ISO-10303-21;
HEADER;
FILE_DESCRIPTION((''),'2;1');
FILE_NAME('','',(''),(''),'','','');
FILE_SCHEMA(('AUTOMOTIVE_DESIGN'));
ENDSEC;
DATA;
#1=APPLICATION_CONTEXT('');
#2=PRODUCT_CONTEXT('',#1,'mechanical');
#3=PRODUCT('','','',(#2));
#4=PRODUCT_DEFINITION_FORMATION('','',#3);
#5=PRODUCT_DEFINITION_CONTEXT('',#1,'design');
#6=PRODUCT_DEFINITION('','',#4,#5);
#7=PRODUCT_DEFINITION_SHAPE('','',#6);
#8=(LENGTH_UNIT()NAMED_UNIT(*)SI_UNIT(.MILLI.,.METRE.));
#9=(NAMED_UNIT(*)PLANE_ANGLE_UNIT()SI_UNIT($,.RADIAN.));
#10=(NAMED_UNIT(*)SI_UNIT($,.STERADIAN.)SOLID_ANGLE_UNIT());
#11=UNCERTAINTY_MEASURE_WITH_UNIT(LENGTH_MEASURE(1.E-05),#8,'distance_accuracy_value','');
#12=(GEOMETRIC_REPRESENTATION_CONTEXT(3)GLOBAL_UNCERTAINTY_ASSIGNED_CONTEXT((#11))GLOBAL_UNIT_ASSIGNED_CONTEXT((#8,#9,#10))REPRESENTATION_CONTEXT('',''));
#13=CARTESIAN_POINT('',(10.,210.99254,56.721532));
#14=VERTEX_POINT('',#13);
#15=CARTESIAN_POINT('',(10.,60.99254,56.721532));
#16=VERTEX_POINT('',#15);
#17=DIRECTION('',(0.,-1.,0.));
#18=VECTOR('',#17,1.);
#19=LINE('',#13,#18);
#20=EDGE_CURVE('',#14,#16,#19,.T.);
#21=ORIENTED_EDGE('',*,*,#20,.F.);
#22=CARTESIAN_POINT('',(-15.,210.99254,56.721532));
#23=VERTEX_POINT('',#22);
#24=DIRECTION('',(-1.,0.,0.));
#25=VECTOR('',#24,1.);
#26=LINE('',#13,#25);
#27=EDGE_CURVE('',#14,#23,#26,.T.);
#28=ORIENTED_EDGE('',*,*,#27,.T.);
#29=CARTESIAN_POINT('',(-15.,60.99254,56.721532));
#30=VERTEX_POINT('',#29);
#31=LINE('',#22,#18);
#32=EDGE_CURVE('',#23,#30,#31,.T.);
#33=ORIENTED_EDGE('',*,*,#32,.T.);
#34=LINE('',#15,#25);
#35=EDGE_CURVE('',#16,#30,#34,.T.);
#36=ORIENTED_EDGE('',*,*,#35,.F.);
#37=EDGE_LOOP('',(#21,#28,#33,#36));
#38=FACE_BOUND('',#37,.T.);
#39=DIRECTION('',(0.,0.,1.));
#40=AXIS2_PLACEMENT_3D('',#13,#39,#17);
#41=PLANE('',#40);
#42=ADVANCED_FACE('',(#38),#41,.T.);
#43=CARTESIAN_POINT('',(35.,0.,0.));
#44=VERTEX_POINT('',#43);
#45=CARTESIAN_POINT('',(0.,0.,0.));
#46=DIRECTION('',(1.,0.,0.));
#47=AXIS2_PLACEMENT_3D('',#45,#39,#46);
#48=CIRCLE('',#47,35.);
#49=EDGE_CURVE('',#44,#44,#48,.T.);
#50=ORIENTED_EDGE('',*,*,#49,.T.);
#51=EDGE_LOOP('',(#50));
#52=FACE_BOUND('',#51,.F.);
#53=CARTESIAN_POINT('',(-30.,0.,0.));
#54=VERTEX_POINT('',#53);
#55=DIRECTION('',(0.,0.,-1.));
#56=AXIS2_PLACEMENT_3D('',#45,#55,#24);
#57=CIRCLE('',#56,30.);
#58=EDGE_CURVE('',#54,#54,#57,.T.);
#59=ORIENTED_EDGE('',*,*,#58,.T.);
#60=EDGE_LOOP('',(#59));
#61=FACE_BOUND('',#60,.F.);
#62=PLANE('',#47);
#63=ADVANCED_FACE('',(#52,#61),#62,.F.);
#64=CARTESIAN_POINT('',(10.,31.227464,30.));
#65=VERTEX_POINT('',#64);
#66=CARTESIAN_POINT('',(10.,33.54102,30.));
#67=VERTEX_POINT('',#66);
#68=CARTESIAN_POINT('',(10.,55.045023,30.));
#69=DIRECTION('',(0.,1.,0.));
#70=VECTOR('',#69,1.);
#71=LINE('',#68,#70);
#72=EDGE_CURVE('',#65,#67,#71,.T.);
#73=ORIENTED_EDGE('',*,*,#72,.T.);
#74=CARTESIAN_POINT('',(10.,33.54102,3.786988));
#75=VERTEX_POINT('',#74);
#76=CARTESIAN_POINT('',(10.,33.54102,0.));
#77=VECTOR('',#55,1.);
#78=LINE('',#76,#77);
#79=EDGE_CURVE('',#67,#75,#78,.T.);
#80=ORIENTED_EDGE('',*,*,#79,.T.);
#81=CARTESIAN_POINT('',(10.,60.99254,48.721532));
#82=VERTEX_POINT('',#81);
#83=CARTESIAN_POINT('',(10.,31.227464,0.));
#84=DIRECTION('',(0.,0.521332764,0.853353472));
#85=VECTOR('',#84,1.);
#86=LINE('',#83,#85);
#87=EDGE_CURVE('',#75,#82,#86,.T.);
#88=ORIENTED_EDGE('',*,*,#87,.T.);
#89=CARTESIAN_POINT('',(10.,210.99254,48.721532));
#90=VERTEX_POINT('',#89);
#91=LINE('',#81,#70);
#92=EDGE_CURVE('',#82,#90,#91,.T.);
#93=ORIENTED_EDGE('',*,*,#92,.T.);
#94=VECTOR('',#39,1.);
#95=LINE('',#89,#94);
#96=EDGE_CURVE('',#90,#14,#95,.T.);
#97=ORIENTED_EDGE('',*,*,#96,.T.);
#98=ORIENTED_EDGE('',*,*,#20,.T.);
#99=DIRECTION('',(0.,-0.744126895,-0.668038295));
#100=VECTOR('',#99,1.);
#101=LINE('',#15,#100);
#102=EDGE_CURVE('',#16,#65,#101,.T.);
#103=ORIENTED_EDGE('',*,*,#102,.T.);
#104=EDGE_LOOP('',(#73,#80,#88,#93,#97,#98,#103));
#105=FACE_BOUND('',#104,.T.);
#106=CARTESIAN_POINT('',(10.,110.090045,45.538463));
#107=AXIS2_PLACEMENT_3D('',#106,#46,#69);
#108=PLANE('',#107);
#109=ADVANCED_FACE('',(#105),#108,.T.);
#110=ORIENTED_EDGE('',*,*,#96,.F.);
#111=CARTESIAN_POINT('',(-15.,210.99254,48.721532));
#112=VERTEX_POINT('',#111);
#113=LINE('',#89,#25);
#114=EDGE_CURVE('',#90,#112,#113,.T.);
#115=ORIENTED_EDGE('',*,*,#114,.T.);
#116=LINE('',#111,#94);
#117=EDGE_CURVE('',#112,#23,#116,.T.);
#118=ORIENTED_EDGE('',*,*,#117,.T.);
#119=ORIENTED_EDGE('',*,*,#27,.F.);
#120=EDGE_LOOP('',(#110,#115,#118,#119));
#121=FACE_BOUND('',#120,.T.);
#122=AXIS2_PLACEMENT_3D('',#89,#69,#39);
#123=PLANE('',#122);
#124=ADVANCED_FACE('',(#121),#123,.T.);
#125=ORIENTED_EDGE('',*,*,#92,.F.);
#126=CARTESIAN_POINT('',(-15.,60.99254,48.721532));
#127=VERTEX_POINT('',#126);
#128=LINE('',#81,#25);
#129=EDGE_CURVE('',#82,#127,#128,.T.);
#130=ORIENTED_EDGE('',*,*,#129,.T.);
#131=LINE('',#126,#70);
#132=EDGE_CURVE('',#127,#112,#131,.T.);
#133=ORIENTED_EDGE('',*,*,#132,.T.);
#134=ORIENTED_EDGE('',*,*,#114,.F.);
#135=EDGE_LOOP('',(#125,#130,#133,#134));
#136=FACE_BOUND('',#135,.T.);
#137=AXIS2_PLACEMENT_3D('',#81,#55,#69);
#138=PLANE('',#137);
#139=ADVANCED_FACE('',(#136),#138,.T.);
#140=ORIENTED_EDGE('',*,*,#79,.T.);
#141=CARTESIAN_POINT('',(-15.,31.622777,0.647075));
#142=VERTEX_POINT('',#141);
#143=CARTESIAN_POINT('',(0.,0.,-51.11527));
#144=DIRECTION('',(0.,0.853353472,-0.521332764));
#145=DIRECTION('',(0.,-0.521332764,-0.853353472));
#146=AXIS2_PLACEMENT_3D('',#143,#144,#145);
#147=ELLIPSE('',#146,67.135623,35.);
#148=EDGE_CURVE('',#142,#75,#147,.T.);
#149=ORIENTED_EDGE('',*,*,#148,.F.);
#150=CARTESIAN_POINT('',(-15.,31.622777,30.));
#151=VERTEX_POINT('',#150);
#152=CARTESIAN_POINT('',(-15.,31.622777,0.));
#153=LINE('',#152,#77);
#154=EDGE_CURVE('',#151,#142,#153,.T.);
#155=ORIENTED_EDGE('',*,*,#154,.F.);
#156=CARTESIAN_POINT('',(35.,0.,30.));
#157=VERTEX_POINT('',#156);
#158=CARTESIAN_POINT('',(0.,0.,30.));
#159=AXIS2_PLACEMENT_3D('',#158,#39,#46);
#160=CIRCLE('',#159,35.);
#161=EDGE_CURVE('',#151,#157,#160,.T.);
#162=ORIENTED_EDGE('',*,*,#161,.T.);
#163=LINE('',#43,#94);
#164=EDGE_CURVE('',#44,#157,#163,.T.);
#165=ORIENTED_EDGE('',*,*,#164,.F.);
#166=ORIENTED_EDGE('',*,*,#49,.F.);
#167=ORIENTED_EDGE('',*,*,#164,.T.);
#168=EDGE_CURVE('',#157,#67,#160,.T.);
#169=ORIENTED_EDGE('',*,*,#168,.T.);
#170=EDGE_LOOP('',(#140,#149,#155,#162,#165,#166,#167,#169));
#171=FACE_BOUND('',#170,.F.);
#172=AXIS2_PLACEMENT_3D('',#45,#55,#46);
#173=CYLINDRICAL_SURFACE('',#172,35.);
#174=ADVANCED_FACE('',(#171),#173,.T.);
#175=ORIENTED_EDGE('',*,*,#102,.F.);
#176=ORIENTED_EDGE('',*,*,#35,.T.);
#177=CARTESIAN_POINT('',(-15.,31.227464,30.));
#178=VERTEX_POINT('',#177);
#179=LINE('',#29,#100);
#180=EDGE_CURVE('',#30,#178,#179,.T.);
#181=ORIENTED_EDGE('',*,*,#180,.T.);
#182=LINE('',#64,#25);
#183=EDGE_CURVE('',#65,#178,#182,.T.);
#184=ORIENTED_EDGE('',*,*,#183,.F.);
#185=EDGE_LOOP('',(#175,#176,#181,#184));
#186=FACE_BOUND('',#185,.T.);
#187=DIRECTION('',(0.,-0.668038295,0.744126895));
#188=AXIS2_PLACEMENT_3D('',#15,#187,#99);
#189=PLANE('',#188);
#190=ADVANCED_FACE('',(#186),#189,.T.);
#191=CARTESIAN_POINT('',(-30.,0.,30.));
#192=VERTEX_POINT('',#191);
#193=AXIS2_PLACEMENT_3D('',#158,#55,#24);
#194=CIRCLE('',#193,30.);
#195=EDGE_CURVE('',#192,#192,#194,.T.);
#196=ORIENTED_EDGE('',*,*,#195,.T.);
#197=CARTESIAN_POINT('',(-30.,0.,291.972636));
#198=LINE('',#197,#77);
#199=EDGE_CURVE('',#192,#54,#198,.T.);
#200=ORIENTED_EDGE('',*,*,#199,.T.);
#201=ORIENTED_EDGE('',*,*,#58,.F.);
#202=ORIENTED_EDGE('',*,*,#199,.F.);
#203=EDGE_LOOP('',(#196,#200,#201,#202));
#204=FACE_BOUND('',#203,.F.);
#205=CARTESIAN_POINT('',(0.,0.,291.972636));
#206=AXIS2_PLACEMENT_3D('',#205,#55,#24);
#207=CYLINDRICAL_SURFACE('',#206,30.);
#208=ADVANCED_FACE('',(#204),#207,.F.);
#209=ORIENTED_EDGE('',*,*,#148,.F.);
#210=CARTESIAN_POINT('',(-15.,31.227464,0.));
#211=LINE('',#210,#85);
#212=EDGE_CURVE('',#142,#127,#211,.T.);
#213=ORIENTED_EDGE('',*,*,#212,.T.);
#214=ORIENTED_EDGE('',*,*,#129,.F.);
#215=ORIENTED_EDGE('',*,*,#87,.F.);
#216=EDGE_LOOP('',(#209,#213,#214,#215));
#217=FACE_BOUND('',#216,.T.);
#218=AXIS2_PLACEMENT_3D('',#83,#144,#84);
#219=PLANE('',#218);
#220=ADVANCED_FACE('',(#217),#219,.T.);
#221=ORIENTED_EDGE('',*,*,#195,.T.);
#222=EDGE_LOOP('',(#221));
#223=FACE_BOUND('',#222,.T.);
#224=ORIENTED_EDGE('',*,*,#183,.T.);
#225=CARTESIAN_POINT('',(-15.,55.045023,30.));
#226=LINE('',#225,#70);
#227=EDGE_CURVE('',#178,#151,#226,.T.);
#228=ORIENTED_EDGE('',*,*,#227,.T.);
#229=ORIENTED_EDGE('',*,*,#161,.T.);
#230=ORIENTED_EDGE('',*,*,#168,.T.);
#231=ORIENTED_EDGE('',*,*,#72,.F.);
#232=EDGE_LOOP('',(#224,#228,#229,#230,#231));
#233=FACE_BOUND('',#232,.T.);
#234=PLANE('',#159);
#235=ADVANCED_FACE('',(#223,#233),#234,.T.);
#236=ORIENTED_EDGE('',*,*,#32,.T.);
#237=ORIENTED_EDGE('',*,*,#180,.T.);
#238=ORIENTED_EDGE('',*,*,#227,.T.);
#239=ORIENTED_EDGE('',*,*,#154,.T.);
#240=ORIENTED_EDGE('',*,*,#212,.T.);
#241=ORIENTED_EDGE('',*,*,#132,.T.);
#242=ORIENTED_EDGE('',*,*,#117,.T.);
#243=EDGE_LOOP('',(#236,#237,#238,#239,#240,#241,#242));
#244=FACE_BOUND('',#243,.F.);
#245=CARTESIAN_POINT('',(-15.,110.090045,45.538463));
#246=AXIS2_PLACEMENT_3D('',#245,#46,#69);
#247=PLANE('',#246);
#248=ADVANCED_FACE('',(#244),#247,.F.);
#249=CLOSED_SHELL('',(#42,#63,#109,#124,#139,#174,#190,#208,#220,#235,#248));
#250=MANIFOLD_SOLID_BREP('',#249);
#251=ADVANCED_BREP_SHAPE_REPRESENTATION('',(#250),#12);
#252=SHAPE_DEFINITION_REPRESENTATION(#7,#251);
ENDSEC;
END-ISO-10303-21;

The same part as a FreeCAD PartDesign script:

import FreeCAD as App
import Part
import Sketcher
Q = App.Units.Quantity


def add_polygon(sketch, points):
    """Adds a closed chain of lines whose ends are joined by coincident constraints."""
    first, n = sketch.GeometryCount, len(points)
    for a, b in zip(points, points[1:] + points[:1]):
        sketch.addGeometry(Part.LineSegment(App.Vector(*a, 0), App.Vector(*b, 0)), False)
    for i in range(n):
        sketch.addConstraint(Sketcher.Constraint("Coincident", first + i, 2, first + (i + 1) % n, 1))

doc = App.newDocument("Part")
body = doc.addObject("PartDesign::Body", "Body")

# Sketch on XY plane
sketch1 = doc.addObject("Sketcher::SketchObject", "Sketch")
body.addObject(sketch1)
sketch1.AttachmentSupport = (doc.XY_Plane, [""])
sketch1.MapMode = "FlatFace"
sketch1.addGeometry(Part.Circle(App.Vector(0, 0, 0), App.Vector(0, 0, 1), 35), False)
sketch1.addConstraint([
    Sketcher.Constraint("Coincident", 0, 3, -1, 1),
    Sketcher.Constraint("Diameter", 0, Q("70 mm")),
])
pad1 = doc.addObject("PartDesign::Pad", "Pad")
body.addObject(pad1)
pad1.Profile = sketch1
pad1.Length = 30

# Sketch on YZ plane
sketch2 = doc.addObject("Sketcher::SketchObject", "Sketch001")
body.addObject(sketch2)
sketch2.AttachmentSupport = (doc.YZ_Plane, [""])
sketch2.MapMode = "FlatFace"
sketch2.AttachmentOffset = App.Placement(App.Vector(0, 0, 10), App.Rotation())
add_polygon(sketch2, [(31, 30), (31, 0), (61, 49), (211, 49), (211, 57), (61, 57)])  # lines 0-5
sketch2.addConstraint([
    Sketcher.Constraint("Vertical", 0),
    Sketcher.Constraint("Horizontal", 2),
    Sketcher.Constraint("Vertical", 3),
    Sketcher.Constraint("Horizontal", 4),
    Sketcher.Constraint("PointOnObject", 0, 2, -1),
    Sketcher.Constraint("Vertical", 1, 2, 4, 2),
    Sketcher.Constraint("DistanceX", 2, 1, 2, 2, Q("150 mm")),
    Sketcher.Constraint("DistanceY", 0, 2, 0, 1, Q("30 mm")),
    Sketcher.Constraint("DistanceY", 3, 1, 3, 2, Q("8 mm")),
    Sketcher.Constraint("Distance", 5, Q("40 mm")),
    Sketcher.Constraint("DistanceX", -1, 1, 1, 2, Q("60.99254 mm")),
    Sketcher.Constraint("Distance", 1, Q("57.094198 mm")),
])
pad2 = doc.addObject("PartDesign::Pad", "Pad001")
body.addObject(pad2)
pad2.Profile = sketch2
pad2.Length = 25
pad2.Reversed = True

# Sketch on XY plane
sketch3 = doc.addObject("Sketcher::SketchObject", "Sketch002")
body.addObject(sketch3)
sketch3.AttachmentSupport = (doc.XY_Plane, [""])
sketch3.MapMode = "FlatFace"
sketch3.AttachmentOffset = App.Placement(App.Vector(0, 0, 30), App.Rotation())
sketch3.addGeometry(Part.Circle(App.Vector(0, 0, 0), App.Vector(0, 0, 1), 30), False)
sketch3.addConstraint([
    Sketcher.Constraint("Coincident", 0, 3, -1, 1),
    Sketcher.Constraint("Diameter", 0, Q("60 mm")),
])
doc.recompute()
hole = doc.addObject("PartDesign::Hole", "Hole")
body.addObject(hole)
hole.Profile = sketch3
hole.ThreadType = "None"
hole.Diameter = 60
hole.DepthType = "ThroughAll"

doc.recompute()
